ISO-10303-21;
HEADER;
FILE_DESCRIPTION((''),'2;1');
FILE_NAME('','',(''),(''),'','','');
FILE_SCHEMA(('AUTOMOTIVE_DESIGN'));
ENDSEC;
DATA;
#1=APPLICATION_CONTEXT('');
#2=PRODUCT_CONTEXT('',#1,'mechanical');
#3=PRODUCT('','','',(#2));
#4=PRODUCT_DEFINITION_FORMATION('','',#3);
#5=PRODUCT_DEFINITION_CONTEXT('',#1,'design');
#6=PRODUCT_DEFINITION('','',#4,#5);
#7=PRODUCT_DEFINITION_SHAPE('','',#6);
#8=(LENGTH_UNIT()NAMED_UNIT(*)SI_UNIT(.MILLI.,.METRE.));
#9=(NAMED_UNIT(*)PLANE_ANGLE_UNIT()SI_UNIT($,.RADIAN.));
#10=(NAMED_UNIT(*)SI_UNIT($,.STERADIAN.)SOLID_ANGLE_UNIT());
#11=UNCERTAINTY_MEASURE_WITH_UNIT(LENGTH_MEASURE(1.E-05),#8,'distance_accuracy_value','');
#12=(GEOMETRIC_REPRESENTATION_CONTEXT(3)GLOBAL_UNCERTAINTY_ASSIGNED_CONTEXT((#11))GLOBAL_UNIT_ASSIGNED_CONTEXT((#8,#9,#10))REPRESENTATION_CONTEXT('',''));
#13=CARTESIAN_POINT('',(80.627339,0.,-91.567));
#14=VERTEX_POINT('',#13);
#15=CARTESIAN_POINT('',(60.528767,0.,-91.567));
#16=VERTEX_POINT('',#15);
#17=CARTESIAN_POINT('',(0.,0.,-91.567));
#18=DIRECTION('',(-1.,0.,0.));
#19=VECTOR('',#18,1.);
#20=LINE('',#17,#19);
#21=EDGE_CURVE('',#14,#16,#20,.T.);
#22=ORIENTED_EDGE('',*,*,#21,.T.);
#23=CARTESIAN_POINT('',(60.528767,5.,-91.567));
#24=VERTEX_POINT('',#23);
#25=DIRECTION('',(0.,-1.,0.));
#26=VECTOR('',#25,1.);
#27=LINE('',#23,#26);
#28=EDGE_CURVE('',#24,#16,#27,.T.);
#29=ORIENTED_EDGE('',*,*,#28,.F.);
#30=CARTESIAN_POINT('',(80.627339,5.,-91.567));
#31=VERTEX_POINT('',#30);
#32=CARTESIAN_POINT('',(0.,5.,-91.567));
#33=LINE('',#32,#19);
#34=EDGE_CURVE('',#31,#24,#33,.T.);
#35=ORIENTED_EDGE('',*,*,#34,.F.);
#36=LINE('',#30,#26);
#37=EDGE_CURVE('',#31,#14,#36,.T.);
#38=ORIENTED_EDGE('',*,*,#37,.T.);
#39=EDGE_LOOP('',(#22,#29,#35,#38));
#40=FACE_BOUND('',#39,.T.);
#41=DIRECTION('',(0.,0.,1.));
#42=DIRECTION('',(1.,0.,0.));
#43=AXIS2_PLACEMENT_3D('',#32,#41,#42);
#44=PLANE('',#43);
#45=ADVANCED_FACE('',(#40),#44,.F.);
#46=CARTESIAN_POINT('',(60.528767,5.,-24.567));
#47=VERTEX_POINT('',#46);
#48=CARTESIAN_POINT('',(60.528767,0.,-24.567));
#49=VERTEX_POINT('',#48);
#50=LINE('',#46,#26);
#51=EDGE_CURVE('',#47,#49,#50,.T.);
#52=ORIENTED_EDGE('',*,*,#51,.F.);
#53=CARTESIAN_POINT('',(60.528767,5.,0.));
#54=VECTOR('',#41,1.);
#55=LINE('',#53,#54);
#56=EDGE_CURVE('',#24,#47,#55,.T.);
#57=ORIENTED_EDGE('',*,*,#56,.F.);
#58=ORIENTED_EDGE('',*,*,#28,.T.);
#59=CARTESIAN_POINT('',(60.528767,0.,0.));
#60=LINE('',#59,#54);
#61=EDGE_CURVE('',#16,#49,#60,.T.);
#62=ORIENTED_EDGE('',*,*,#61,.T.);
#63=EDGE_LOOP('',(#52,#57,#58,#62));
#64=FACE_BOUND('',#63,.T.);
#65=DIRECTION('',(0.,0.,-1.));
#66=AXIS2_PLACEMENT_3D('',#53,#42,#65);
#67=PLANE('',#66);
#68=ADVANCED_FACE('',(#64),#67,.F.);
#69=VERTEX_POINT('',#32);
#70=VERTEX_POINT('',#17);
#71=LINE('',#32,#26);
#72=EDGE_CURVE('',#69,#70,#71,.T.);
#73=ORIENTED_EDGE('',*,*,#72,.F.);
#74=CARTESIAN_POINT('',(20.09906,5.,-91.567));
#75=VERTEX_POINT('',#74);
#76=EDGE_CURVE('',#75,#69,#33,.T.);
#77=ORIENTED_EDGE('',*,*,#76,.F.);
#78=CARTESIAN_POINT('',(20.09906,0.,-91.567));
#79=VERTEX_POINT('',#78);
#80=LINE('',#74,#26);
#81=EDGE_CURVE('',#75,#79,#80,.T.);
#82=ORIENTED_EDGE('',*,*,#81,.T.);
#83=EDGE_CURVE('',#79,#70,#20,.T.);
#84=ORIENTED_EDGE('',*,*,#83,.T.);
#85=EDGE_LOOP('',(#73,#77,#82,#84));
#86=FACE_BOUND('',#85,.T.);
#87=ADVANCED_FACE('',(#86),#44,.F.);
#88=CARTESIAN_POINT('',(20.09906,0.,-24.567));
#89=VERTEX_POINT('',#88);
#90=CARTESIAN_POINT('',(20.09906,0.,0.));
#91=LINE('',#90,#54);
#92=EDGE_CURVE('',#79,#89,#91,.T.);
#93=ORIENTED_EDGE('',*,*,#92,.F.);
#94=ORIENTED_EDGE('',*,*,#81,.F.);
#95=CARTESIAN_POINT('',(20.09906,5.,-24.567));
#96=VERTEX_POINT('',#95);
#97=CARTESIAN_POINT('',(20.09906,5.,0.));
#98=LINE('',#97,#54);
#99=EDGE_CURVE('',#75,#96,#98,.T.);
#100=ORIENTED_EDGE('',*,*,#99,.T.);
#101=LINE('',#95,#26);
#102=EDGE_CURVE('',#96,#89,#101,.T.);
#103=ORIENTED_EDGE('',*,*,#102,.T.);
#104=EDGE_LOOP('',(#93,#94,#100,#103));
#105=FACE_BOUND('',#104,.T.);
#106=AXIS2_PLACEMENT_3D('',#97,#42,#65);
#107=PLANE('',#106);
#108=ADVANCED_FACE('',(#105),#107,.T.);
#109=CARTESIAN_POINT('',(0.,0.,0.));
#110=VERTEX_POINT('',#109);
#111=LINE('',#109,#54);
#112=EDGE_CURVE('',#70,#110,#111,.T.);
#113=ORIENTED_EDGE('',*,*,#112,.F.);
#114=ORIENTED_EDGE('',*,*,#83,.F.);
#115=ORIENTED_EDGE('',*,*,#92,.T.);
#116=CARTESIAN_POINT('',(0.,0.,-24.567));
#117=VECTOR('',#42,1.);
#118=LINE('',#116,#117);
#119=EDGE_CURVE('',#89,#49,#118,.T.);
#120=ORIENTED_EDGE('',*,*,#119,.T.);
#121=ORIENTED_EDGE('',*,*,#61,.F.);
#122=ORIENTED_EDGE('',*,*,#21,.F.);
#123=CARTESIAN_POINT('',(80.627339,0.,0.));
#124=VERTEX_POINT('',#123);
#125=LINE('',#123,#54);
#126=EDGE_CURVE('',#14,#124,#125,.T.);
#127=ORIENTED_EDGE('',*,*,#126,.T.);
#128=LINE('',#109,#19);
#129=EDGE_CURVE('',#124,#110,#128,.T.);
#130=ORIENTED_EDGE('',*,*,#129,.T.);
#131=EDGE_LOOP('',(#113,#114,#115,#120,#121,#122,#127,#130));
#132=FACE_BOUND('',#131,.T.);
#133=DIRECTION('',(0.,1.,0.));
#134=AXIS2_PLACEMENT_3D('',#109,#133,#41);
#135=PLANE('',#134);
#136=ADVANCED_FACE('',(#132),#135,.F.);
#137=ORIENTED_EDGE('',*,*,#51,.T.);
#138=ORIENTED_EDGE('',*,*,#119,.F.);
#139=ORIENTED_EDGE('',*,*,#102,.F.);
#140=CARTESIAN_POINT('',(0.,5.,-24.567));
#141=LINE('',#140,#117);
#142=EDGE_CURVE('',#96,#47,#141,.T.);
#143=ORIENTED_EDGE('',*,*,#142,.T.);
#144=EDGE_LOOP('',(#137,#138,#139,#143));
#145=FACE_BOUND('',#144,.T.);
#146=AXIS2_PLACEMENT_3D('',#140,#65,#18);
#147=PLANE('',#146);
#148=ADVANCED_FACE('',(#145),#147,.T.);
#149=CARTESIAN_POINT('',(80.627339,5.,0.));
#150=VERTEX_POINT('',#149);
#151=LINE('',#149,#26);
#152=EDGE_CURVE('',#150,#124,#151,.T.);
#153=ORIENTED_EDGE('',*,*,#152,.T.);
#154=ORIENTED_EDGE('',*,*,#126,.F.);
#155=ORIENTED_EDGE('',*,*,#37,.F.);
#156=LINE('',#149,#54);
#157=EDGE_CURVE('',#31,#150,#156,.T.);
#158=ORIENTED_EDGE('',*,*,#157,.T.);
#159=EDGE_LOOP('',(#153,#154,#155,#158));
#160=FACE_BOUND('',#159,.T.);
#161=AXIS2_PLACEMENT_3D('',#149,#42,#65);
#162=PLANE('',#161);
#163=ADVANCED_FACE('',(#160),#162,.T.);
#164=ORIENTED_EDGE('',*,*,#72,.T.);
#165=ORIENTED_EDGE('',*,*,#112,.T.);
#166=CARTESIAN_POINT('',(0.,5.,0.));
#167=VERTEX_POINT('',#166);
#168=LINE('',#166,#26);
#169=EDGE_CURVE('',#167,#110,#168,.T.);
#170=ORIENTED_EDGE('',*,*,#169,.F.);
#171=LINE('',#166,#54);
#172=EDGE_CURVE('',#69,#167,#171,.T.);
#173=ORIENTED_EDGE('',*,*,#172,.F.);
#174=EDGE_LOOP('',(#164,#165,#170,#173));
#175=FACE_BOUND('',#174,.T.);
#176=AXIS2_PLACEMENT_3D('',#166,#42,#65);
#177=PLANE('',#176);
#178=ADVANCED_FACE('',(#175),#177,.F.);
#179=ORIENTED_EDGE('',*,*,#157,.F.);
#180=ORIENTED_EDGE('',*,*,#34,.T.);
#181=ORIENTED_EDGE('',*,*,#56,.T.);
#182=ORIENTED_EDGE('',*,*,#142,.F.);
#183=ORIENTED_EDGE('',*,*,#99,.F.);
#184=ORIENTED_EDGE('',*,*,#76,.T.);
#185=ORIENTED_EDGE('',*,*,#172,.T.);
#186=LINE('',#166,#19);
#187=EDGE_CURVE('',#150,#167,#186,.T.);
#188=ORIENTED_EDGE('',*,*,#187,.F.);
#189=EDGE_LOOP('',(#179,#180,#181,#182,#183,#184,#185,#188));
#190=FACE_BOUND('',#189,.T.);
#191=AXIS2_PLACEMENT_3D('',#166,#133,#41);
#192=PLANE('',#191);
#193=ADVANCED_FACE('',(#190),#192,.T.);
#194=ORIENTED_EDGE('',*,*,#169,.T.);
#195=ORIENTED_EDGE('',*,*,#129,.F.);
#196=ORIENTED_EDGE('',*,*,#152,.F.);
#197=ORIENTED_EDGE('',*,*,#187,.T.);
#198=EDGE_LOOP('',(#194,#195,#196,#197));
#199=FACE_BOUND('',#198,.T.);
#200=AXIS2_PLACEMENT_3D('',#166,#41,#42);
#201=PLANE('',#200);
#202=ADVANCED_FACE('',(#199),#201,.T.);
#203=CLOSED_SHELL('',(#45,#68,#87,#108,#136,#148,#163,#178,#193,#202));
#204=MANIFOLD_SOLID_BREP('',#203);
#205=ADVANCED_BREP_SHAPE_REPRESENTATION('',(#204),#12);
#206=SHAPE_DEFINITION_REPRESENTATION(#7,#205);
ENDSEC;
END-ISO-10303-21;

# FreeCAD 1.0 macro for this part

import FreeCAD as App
import Part
import Sketcher
from FreeCAD import Vector
Q = App.Units.Quantity

doc = App.newDocument("Part")
body = doc.addObject("PartDesign::Body", "Body")

sketch1 = body.newObject("Sketcher::SketchObject", "Sketch")
sketch1.AttachmentSupport = (doc.getObject("XZ_Plane"), [""])
sketch1.MapMode = "FlatFace"
sketch1.addGeometry([
    Part.LineSegment(Vector(81, 0, 0), Vector(81, -92, 0)),
    Part.LineSegment(Vector(81, -92, 0), Vector(61, -92, 0)),
    Part.LineSegment(Vector(61, -92, 0), Vector(61, -25, 0)),
    Part.LineSegment(Vector(61, -25, 0), Vector(20, -25, 0)),
    Part.LineSegment(Vector(20, -25, 0), Vector(20, -92, 0)),
    Part.LineSegment(Vector(20, -92, 0), Vector(0, -92, 0)),
    Part.LineSegment(Vector(0, -92, 0), Vector(0, 0, 0)),
    Part.LineSegment(Vector(0, 0, 0), Vector(81, 0, 0)),
], False)
sketch1.addConstraint([
    Sketcher.Constraint("Coincident", 0, 2, 1, 1),
    Sketcher.Constraint("Coincident", 1, 2, 2, 1),
    Sketcher.Constraint("Coincident", 2, 2, 3, 1),
    Sketcher.Constraint("Coincident", 3, 2, 4, 1),
    Sketcher.Constraint("Coincident", 4, 2, 5, 1),
    Sketcher.Constraint("Coincident", 5, 2, 6, 1),
    Sketcher.Constraint("Coincident", 6, 2, 7, 1),
    Sketcher.Constraint("Coincident", 7, 2, 0, 1),
    Sketcher.Constraint("Vertical", 0),
    Sketcher.Constraint("Horizontal", 1),
    Sketcher.Constraint("Vertical", 2),
    Sketcher.Constraint("Horizontal", 3),
    Sketcher.Constraint("Vertical", 4),
    Sketcher.Constraint("Horizontal", 5),
    Sketcher.Constraint("Vertical", 6),
    Sketcher.Constraint("Horizontal", 7),
    Sketcher.Constraint("Coincident", 6, 2, -1, 1),
    Sketcher.Constraint("Horizontal", 1, 2, 4, 2),
    Sketcher.Constraint("DistanceY", 2, 1, 2, 2, Q("67 mm")),
    Sketcher.Constraint("DistanceY", 0, 2, 0, 1, Q("91.567 mm")),
    Sketcher.Constraint("DistanceX", 5, 2, 5, 1, Q("20.09906 mm")),
    Sketcher.Constraint("DistanceX", 7, 1, 7, 2, Q("80.627339 mm")),
    Sketcher.Constraint("DistanceX", 1, 2, 1, 1, Q("20.098572 mm")),
])
pad1 = body.newObject("PartDesign::Pad", "Pad")
pad1.Profile = sketch1
pad1.Length = 5
pad1.Reversed = True

doc.recompute()
